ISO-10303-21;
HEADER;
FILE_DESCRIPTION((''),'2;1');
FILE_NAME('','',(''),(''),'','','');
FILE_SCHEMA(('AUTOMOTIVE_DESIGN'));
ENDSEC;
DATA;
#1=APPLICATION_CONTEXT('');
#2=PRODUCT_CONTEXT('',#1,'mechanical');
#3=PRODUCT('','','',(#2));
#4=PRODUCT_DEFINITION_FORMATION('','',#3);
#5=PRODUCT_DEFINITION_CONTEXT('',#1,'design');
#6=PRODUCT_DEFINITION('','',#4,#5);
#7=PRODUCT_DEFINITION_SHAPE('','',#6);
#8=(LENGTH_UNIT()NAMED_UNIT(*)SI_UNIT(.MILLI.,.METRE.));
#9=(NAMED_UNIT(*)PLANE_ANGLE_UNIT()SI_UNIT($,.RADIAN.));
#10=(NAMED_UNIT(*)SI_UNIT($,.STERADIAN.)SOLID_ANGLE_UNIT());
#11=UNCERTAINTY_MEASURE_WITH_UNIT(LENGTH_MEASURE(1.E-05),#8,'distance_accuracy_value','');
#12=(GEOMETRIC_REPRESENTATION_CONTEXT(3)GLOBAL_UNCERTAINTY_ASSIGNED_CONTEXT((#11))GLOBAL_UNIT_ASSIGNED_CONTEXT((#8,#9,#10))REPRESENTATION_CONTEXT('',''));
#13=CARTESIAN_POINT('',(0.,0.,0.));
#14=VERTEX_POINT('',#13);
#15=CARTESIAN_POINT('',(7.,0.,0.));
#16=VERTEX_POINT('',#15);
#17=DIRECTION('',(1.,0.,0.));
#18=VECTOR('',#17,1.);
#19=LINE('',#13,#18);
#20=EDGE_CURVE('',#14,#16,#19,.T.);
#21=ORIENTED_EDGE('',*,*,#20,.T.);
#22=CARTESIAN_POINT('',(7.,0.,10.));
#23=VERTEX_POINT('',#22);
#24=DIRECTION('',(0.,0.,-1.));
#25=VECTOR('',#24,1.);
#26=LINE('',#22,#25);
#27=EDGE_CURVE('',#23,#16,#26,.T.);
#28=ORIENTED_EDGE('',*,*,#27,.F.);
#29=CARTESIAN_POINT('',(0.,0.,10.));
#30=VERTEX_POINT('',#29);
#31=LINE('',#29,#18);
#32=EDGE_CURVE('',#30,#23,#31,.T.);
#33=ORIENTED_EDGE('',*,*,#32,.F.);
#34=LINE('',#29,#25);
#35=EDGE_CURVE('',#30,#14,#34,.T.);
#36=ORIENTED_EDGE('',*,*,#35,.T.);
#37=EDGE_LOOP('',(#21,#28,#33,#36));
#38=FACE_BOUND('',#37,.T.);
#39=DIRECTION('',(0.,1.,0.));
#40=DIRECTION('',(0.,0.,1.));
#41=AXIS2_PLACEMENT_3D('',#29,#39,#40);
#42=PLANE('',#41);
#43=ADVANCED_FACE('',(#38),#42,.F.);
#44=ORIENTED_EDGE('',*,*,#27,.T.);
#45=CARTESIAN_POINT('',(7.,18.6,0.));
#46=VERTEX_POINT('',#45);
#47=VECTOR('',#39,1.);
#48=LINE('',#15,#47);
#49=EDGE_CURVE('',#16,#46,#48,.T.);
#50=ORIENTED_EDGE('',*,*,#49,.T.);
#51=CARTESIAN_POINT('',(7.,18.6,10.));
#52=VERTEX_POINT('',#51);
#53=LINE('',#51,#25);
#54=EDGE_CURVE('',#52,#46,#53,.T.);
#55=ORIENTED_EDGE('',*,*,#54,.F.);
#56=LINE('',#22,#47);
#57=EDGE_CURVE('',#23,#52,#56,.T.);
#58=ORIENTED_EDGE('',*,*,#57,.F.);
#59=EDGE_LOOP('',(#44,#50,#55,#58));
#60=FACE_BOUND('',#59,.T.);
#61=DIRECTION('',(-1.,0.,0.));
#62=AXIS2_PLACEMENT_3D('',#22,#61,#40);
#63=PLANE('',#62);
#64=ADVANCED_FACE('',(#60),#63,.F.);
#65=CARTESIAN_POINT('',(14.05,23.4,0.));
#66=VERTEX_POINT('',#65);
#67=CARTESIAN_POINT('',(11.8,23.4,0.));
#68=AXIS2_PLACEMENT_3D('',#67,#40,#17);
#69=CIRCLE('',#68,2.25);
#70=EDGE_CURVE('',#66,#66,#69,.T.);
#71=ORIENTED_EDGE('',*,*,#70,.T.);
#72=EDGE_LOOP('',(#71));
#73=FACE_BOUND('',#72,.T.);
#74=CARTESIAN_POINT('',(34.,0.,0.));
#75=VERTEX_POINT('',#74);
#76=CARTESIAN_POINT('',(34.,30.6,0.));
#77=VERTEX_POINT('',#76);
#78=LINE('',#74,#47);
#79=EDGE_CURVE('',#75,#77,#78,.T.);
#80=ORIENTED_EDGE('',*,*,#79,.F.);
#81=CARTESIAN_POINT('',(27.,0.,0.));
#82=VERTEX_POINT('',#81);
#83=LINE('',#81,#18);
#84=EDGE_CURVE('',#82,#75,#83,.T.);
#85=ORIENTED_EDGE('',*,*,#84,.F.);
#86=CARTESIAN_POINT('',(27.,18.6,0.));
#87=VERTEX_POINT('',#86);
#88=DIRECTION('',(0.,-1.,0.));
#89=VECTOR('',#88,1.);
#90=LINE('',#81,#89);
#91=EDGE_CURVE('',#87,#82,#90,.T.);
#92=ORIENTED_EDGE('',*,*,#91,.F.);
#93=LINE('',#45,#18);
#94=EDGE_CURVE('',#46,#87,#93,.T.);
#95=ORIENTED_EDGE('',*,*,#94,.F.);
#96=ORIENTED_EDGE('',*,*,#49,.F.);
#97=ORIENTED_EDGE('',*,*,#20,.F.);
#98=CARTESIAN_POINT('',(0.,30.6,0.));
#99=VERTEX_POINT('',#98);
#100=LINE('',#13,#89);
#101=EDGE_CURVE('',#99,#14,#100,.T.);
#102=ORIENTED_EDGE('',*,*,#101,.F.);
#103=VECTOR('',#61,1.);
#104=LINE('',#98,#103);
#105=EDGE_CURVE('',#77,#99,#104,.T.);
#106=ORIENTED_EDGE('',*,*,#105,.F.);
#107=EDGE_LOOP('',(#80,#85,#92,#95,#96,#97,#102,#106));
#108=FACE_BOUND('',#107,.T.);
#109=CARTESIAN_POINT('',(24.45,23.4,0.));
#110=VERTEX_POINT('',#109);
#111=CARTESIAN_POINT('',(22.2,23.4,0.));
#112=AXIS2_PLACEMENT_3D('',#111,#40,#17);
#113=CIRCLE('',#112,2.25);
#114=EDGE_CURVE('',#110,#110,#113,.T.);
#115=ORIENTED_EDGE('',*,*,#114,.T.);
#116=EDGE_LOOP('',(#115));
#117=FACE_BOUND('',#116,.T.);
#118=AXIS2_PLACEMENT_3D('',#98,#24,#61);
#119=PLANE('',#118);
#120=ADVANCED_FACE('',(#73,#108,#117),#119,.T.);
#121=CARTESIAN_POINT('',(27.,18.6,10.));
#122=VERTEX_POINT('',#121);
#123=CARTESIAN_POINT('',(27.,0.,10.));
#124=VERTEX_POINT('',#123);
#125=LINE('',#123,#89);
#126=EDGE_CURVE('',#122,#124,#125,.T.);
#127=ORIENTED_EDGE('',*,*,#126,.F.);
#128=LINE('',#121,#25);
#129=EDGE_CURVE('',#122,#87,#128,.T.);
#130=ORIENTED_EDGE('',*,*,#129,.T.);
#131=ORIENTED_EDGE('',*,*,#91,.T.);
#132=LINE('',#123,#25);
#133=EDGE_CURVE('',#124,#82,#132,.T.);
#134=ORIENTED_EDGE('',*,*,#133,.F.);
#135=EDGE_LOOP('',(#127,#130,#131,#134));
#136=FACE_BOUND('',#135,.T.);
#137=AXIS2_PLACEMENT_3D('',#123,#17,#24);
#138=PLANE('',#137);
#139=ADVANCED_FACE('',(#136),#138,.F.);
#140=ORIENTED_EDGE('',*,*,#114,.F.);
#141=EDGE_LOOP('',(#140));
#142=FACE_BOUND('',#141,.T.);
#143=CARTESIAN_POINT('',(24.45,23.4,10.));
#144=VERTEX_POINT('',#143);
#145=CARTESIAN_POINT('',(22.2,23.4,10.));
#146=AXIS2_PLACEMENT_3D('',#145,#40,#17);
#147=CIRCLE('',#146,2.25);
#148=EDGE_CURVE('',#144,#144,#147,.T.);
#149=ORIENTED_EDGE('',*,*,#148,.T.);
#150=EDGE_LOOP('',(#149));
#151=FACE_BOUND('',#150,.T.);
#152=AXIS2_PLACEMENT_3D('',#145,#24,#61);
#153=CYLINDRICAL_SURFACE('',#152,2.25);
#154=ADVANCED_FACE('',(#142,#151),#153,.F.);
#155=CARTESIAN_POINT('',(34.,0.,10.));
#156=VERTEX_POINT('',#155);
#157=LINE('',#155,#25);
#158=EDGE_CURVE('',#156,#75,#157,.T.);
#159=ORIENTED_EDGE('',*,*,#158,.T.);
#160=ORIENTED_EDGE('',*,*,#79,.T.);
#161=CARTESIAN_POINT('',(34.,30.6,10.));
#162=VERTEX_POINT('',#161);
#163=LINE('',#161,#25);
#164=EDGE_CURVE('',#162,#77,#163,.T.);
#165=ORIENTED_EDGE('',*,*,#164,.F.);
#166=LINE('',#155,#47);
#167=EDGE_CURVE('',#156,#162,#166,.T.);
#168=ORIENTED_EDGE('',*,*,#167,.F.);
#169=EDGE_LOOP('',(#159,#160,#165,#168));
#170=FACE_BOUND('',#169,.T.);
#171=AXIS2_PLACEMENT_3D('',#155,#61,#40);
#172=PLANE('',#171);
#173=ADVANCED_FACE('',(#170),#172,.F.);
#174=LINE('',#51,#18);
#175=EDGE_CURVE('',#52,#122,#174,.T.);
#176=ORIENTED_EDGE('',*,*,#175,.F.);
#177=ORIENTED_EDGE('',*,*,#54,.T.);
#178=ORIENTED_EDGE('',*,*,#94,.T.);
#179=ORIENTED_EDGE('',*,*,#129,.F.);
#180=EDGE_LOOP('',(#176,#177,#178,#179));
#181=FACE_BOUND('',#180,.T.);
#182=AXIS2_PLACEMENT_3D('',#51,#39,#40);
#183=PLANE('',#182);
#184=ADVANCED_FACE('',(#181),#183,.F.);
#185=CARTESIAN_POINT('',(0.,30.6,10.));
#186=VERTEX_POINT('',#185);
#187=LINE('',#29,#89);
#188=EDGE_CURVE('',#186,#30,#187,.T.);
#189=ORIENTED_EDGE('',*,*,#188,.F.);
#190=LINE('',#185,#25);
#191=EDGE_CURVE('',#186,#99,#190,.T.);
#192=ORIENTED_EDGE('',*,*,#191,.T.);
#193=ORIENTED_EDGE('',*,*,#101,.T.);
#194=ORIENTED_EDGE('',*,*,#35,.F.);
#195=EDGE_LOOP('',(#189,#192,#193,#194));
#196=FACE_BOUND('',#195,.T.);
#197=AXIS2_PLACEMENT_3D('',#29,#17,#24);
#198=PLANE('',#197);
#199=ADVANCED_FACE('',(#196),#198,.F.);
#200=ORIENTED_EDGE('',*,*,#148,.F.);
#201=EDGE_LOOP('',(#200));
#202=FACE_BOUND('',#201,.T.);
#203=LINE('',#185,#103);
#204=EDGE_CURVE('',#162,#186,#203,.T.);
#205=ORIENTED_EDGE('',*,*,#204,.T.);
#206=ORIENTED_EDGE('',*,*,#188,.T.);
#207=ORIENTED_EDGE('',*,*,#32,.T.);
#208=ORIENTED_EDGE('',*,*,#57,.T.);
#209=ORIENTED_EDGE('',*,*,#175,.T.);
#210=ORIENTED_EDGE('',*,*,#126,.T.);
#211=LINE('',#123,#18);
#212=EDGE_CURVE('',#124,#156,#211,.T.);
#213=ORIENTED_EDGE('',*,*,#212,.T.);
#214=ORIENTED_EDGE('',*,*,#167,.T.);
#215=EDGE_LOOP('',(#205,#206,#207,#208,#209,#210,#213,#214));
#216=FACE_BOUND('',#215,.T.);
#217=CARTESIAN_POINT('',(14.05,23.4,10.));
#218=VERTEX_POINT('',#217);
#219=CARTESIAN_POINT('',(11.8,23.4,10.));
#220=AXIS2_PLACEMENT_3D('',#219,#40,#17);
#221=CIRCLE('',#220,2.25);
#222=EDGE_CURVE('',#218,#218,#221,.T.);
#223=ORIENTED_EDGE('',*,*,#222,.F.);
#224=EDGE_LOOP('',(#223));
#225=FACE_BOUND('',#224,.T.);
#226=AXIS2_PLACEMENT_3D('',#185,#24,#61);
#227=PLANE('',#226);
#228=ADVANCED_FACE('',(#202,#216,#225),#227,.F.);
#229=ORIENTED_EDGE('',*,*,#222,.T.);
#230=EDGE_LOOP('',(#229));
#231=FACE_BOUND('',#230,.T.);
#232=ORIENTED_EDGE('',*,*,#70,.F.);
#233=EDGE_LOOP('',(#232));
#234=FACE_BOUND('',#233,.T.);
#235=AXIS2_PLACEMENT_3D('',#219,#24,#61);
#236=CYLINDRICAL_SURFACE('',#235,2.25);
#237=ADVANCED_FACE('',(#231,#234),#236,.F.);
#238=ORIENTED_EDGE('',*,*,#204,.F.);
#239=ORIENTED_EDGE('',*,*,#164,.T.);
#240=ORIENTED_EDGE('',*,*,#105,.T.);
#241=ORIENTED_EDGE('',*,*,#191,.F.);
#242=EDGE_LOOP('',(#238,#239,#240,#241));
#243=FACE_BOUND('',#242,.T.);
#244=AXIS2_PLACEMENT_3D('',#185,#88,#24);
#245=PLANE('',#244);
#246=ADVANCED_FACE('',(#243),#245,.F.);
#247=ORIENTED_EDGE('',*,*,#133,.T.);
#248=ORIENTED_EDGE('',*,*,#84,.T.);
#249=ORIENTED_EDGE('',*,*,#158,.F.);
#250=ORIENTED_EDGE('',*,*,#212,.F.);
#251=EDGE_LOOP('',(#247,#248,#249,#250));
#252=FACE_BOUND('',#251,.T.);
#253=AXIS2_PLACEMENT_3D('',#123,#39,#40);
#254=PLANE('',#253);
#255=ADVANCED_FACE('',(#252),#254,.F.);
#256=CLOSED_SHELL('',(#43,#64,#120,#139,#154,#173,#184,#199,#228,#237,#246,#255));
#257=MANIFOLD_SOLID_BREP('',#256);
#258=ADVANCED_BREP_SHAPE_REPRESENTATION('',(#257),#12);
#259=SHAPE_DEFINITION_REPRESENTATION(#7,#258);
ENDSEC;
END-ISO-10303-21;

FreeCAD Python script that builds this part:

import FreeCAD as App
import Part
import Sketcher
from FreeCAD import Vector


def add_polygon(sketch, points):
    """Adds a closed chain of lines whose ends are joined by coincident constraints."""
    first, n = sketch.GeometryCount, len(points)
    for a, b in zip(points, points[1:] + points[:1]):
        sketch.addGeometry(Part.LineSegment(App.Vector(*a, 0), App.Vector(*b, 0)), False)
    for i in range(n):
        sketch.addConstraint(Sketcher.Constraint("Coincident", first + i, 2, first + (i + 1) % n, 1))

doc = App.newDocument("Part")
body = doc.addObject("PartDesign::Body", "Body")

# Sketch on XY plane
sketch1 = doc.addObject("Sketcher::SketchObject", "Sketch")
body.addObject(sketch1)
sketch1.AttachmentSupport = (doc.XY_Plane, [""])
sketch1.MapMode = "FlatFace"
add_polygon(sketch1, [(27, 0), (34, 0), (34, 30.6), (0, 30.6), (0, 0), (7, 0), (7, 18.6), (27, 18.6)])  # lines 0-7
sketch1.addGeometry(Part.Circle(Vector(11.8, 23.4, 0), Vector(0, 0, 1), 2.2), False)  # 8
sketch1.addGeometry(Part.Circle(Vector(22.2, 23.4, 0), Vector(0, 0, 1), 2.2), False)  # 9
sketch1.addConstraint([
    Sketcher.Constraint("Horizontal", 0),
    Sketcher.Constraint("Vertical", 1),
    Sketcher.Constraint("Horizontal", 2),
    Sketcher.Constraint("Vertical", 3),
    Sketcher.Constraint("Horizontal", 4),
    Sketcher.Constraint("Vertical", 5),
    Sketcher.Constraint("Horizontal", 6),
    Sketcher.Constraint("Vertical", 7),
    Sketcher.Constraint("Coincident", 3, 2, -1, 1),
    Sketcher.Constraint("Equal", 8, 9),
    Sketcher.Constraint("PointOnObject", 0, 2, -1),
    Sketcher.Constraint("Horizontal", 8, 3, 9, 3),
    Sketcher.Constraint("Equal", 0, 4),
    Sketcher.Constraint("Diameter", 8, 4.5),
    Sketcher.Constraint("DistanceX", 0, 1, 0, 2, 7.0),
    Sketcher.Constraint("DistanceX", 2, 2, 2, 1, 34.0),
    Sketcher.Constraint("DistanceY", 1, 1, 1, 2, 30.6),
    Sketcher.Constraint("DistanceY", 5, 1, 5, 2, 18.6),
    Sketcher.Constraint("DistanceX", -1, 1, 8, 3, 11.8),
    Sketcher.Constraint("DistanceY", -1, 1, 8, 3, 23.4),
    Sketcher.Constraint("DistanceX", -1, 1, 9, 3, 22.2),
])
pad1 = doc.addObject("PartDesign::Pad", "Pad")
body.addObject(pad1)
pad1.Profile = sketch1
pad1.Length = 10

doc.recompute()
